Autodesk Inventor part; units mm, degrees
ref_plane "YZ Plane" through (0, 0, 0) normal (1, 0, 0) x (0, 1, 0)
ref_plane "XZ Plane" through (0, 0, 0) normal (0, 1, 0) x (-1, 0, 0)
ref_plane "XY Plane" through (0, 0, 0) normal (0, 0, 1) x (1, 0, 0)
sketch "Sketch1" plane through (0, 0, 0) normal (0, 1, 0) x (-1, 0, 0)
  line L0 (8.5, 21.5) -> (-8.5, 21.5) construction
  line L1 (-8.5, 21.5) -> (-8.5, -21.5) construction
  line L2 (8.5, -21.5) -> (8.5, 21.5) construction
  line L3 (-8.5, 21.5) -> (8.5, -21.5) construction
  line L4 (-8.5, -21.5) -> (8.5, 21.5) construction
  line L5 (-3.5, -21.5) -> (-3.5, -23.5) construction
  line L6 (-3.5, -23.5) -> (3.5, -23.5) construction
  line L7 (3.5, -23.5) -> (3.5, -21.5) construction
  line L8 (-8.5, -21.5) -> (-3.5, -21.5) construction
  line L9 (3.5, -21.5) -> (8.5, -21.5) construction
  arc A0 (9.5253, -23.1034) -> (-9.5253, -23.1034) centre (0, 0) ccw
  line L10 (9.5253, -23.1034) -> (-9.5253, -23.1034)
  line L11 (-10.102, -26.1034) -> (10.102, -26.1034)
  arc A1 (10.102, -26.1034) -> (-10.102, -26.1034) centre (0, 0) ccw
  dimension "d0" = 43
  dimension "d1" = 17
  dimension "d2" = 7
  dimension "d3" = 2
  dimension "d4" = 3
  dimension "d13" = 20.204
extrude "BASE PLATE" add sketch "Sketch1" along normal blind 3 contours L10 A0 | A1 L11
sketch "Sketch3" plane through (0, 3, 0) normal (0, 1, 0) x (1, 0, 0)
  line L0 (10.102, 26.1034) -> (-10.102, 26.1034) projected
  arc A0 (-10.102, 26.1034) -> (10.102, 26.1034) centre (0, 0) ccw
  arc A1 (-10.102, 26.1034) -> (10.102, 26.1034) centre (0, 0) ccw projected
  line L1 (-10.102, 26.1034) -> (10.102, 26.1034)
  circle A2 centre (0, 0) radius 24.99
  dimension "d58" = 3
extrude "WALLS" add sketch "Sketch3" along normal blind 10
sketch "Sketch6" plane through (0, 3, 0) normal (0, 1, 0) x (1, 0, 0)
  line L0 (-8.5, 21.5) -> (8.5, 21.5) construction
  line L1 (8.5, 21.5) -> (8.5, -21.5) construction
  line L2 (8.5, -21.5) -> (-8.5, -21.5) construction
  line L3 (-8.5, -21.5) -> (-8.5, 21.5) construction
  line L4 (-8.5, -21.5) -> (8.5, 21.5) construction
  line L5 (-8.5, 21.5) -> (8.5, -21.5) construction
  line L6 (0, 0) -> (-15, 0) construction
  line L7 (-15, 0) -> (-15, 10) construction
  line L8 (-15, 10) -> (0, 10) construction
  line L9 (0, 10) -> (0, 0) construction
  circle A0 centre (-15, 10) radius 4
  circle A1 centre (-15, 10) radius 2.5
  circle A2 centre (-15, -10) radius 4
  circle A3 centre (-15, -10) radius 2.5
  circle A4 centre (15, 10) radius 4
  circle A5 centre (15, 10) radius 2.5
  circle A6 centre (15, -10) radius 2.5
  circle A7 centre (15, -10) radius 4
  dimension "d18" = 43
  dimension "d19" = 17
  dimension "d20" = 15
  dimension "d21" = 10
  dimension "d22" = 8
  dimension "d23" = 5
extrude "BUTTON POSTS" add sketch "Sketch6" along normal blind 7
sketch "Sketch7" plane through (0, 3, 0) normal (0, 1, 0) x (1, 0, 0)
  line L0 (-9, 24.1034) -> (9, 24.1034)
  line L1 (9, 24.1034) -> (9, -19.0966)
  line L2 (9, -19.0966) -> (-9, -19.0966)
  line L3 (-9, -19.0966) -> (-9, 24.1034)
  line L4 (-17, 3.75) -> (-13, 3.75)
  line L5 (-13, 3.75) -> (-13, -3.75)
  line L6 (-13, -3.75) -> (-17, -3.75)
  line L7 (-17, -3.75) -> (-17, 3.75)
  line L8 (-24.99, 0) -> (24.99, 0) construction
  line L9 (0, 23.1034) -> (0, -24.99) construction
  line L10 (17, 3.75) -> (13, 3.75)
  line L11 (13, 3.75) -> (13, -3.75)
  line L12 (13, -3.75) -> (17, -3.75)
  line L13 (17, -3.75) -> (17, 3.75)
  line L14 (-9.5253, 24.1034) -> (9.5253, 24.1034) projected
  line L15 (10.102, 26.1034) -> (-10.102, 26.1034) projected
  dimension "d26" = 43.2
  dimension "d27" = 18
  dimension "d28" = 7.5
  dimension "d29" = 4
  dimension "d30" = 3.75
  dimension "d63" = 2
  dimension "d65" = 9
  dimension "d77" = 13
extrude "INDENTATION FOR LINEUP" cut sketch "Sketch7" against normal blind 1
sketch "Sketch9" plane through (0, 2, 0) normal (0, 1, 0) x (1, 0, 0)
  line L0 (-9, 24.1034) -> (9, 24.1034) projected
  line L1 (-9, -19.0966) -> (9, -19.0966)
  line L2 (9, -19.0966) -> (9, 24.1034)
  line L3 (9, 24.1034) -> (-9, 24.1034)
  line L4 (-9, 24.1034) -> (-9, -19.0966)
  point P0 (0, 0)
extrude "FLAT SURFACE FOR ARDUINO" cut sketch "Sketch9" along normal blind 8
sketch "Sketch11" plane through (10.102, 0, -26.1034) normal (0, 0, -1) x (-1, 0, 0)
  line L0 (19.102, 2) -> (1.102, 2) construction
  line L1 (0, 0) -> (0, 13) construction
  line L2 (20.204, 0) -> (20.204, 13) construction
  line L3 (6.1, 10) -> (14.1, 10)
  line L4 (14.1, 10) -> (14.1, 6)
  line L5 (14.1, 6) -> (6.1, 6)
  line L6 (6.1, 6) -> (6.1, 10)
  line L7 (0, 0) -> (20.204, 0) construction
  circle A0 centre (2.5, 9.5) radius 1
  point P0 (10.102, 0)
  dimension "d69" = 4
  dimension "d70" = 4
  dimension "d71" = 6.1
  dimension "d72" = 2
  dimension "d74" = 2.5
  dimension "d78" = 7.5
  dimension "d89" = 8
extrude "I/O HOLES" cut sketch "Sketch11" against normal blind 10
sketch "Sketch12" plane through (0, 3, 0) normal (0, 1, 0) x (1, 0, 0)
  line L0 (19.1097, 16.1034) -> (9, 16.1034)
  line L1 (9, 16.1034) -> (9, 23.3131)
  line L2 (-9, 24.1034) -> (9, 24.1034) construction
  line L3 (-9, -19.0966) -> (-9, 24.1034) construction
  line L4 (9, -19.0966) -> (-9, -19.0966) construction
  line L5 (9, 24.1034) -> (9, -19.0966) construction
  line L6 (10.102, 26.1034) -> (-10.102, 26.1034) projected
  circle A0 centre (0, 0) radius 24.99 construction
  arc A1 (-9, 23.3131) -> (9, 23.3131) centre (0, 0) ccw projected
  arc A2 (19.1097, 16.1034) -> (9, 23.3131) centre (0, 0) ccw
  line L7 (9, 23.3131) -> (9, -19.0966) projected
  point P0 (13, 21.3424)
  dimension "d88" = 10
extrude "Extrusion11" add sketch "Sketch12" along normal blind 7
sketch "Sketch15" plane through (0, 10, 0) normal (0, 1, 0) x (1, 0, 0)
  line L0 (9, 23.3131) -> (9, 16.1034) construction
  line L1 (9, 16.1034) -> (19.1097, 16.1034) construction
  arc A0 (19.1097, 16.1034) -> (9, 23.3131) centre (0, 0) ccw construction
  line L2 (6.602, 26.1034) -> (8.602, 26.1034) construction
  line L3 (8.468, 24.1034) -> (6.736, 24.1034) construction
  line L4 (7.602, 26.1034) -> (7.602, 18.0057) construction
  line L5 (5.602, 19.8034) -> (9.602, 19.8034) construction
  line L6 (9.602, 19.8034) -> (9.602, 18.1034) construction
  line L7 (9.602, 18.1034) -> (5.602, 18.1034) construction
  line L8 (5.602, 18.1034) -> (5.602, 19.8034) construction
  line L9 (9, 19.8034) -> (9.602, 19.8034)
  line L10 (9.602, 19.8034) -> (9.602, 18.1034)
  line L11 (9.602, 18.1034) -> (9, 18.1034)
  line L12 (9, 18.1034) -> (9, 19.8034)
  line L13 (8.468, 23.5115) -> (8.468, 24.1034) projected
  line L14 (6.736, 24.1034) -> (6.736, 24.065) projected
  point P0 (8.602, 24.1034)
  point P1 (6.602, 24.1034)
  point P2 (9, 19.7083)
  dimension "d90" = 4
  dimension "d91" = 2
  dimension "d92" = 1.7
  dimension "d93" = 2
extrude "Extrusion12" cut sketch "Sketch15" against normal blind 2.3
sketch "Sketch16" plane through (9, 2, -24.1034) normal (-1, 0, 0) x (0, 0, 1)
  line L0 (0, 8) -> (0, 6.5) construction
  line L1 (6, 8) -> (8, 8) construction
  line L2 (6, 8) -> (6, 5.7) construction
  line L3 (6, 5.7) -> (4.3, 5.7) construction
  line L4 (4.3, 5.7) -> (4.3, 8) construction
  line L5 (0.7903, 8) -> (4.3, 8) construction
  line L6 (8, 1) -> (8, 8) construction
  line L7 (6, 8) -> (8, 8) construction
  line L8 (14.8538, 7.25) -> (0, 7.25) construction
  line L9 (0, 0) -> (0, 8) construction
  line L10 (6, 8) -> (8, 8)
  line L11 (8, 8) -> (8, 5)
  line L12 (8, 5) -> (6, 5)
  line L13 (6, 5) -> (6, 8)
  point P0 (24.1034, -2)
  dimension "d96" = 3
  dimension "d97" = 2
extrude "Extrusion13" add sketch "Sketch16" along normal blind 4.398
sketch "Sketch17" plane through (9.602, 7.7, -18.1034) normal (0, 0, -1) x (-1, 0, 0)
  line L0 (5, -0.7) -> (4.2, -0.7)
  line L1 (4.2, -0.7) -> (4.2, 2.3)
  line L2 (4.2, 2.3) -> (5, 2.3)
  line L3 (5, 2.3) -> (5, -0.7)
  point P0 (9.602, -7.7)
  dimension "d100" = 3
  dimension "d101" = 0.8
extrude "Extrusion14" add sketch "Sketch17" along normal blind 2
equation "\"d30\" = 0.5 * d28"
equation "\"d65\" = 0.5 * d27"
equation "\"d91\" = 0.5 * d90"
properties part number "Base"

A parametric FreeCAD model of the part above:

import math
import FreeCAD as App
import Part
import Sketcher
from FreeCAD import Vector


def add_polygon(sketch, points):
    """Adds a closed chain of lines whose ends are joined by coincident constraints."""
    first, n = sketch.GeometryCount, len(points)
    for a, b in zip(points, points[1:] + points[:1]):
        sketch.addGeometry(Part.LineSegment(App.Vector(*a, 0), App.Vector(*b, 0)), False)
    for i in range(n):
        sketch.addConstraint(Sketcher.Constraint("Coincident", first + i, 2, first + (i + 1) % n, 1))

doc = App.newDocument("Part")
params = doc.addObject("Spreadsheet::Sheet", "Params")
for row, (alias, value) in enumerate([
    ("sketch1_radius", "27.99 mm"),
    ("pad1_length", "3 mm"),
    ("sketch2_diameter", "49.98 mm"),
    ("sketch2_radius", "27.99 mm"),
    ("pad2_length", "10 mm"),
    ("sketch3_diameter", "8 mm"),
    ("sketch3_diameter2", "5 mm"),
    ("pad3_length", "7 mm"),
    ("sketch4_width", "18 mm"),
    ("sketch4_width2", "4 mm"),
    ("sketch4_height", "43.2 mm"),
    ("sketch4_height2", "7.5 mm"),
    ("pocket1_length", "1 mm"),
    ("sketch5_width", "18 mm"),
    ("sketch5_height", "43.2 mm"),
    ("pocket2_length", "8 mm"),
    ("sketch6_diameter", "2 mm"),
    ("sketch6_width", "8 mm"),
    ("sketch6_height", "4 mm"),
    ("pocket3_length", "10 mm"),
    ("sketch7_radius", "24.99 mm"),
    ("pad4_length", "7 mm"),
    ("sketch8_height", "1.7 mm"),
    ("pocket4_length", "2.3 mm"),
    ("sketch9_width", "3 mm"),
    ("sketch9_height", "2 mm"),
    ("pad5_length", "4.398 mm"),
    ("sketch10_height", "3 mm"),
    ("sketch10_width", "0.8 mm"),
    ("pad6_length", "2 mm"),
], start=1):
    params.set(f"A{row}", alias)
    params.set(f"B{row}", "=" + value)
    params.setAlias(f"B{row}", alias)

body = doc.addObject("PartDesign::Body", "Body")

# Sketch on XZ plane
sketch1 = body.newObject("Sketcher::SketchObject", "Sketch")
sketch1.AttachmentSupport = (doc.getObject("XZ_Plane"), [""])
sketch1.MapMode = "FlatFace"
sketch1.addGeometry(Part.ArcOfCircle(Part.Circle(Vector(0, 0, 0), Vector(0, 0, 1), 28), math.radians(-69), math.radians(249)), False)
sketch1.addGeometry(Part.LineSegment(Vector(10, -26, 0), Vector(-10, -26, 0)), False)
sketch1.addConstraint(Sketcher.Constraint("Coincident", 0, 1, 1, 1))
sketch1.addConstraint(Sketcher.Constraint("Coincident", 1, 2, 0, 2))
sketch1.addConstraint(Sketcher.Constraint("Horizontal", 1))
sketch1.addConstraint(Sketcher.Constraint("Coincident", 0, 3, -1, 1))
sketch1.addConstraint(Sketcher.Constraint("DistanceX", 1, 2, 1, 1, 20.204))
sketch1.addConstraint(Sketcher.Constraint("Radius", 0, 27.99))
sketch1.setExpression("Constraints[5]", "Params.sketch1_radius")
pad1 = body.newObject("PartDesign::Pad", "Pad")
pad1.Profile = sketch1
pad1.setExpression("Length", "Params.pad1_length")
pad1.Reversed = True

# Sketch on XZ plane
sketch2 = body.newObject("Sketcher::SketchObject", "Sketch001")
sketch2.AttachmentSupport = (doc.getObject("XZ_Plane"), [""])
sketch2.MapMode = "FlatFace"
sketch2.AttachmentOffset = App.Placement(Vector(0, 0, -3), App.Rotation())
sketch2.addGeometry(Part.ArcOfCircle(Part.Circle(Vector(0, 0, 0), Vector(0, 0, 1), 28), math.radians(-69), math.radians(249)), False)
sketch2.addGeometry(Part.LineSegment(Vector(10, -26, 0), Vector(-10, -26, 0)), False)
sketch2.addGeometry(Part.Circle(Vector(0, 0, 0), Vector(0, 0, 1), 25), False)
sketch2.addConstraint(Sketcher.Constraint("Coincident", 0, 1, 1, 1))
sketch2.addConstraint(Sketcher.Constraint("Coincident", 1, 2, 0, 2))
sketch2.addConstraint(Sketcher.Constraint("Horizontal", 1))
sketch2.addConstraint(Sketcher.Constraint("Coincident", 0, 3, -1, 1))
sketch2.addConstraint(Sketcher.Constraint("Coincident", 2, 3, -1, 1))
sketch2.addConstraint(Sketcher.Constraint("Diameter", 2, 49.98))
sketch2.addConstraint(Sketcher.Constraint("Radius", 0, 27.99))
sketch2.addConstraint(Sketcher.Constraint("DistanceX", 1, 2, 1, 1, 20.204))
sketch2.setExpression("Constraints[5]", "Params.sketch2_diameter")
sketch2.setExpression("Constraints[6]", "Params.sketch2_radius")
pad2 = body.newObject("PartDesign::Pad", "Pad001")
pad2.Profile = sketch2
pad2.setExpression("Length", "Params.pad2_length")
pad2.Reversed = True

# Sketch on XZ plane
sketch3 = body.newObject("Sketcher::SketchObject", "Sketch002")
sketch3.AttachmentSupport = (doc.getObject("XZ_Plane"), [""])
sketch3.MapMode = "FlatFace"
sketch3.AttachmentOffset = App.Placement(Vector(0, 0, -3), App.Rotation())
sketch3.addGeometry(Part.Circle(Vector(-15, -10, 0), Vector(0, 0, 1), 4), False)
sketch3.addGeometry(Part.Circle(Vector(-15, -10, 0), Vector(0, 0, 1), 2.5), False)
sketch3.addGeometry(Part.Circle(Vector(-15, 10, 0), Vector(0, 0, 1), 4), False)
sketch3.addGeometry(Part.Circle(Vector(-15, 10, 0), Vector(0, 0, 1), 2.5), False)
sketch3.addGeometry(Part.Circle(Vector(15, -10, 0), Vector(0, 0, 1), 4), False)
sketch3.addGeometry(Part.Circle(Vector(15, -10, 0), Vector(0, 0, 1), 2.5), False)
sketch3.addGeometry(Part.Circle(Vector(15, 10, 0), Vector(0, 0, 1), 4), False)
sketch3.addGeometry(Part.Circle(Vector(15, 10, 0), Vector(0, 0, 1), 2.5), False)
sketch3.addConstraint(Sketcher.Constraint("Coincident", 1, 3, 0, 3))
sketch3.addConstraint(Sketcher.Constraint("Coincident", 3, 3, 2, 3))
sketch3.addConstraint(Sketcher.Constraint("Coincident", 5, 3, 4, 3))
sketch3.addConstraint(Sketcher.Constraint("Coincident", 7, 3, 6, 3))
sketch3.addConstraint(Sketcher.Constraint("Equal", 0, 2))
sketch3.addConstraint(Sketcher.Constraint("Equal", 1, 3))
sketch3.addConstraint(Sketcher.Constraint("Equal", 2, 4))
sketch3.addConstraint(Sketcher.Constraint("Equal", 3, 5))
sketch3.addConstraint(Sketcher.Constraint("Equal", 4, 6))
sketch3.addConstraint(Sketcher.Constraint("Equal", 5, 7))
sketch3.addConstraint(Sketcher.Constraint("Symmetric", 2, 3, 4, 3, -1, 1))
sketch3.addConstraint(Sketcher.Constraint("Symmetric", 0, 3, 6, 3, -1, 1))
sketch3.addConstraint(Sketcher.Constraint("Symmetric", 0, 3, 4, 3, -2))
sketch3.addConstraint(Sketcher.Constraint("Diameter", 0, 8.0))
sketch3.addConstraint(Sketcher.Constraint("Diameter", 1, 5.0))
sketch3.addConstraint(Sketcher.Constraint("DistanceX", 0, 3, -1, 1, 15.0))
sketch3.addConstraint(Sketcher.Constraint("DistanceY", 0, 3, -1, 1, 10.0))
sketch3.setExpression("Constraints[13]", "Params.sketch3_diameter")
sketch3.setExpression("Constraints[14]", "Params.sketch3_diameter2")
pad3 = body.newObject("PartDesign::Pad", "Pad002")
pad3.Profile = sketch3
pad3.setExpression("Length", "Params.pad3_length")
pad3.Reversed = True

# Sketch on XZ plane
sketch4 = body.newObject("Sketcher::SketchObject", "Sketch003")
sketch4.AttachmentSupport = (doc.getObject("XZ_Plane"), [""])
sketch4.MapMode = "FlatFace"
sketch4.AttachmentOffset = App.Placement(Vector(0, 0, -3), App.Rotation())
add_polygon(sketch4, [(9, -24.1), (-9, -24.1), (-9, 19.1), (9, 19.1)])  # lines 0-3
add_polygon(sketch4, [(-13, -3.8), (-17, -3.8), (-17, 3.8), (-13, 3.8)])  # lines 4-7
add_polygon(sketch4, [(17, 3.8), (17, -3.8), (13, -3.8), (13, 3.8)])  # lines 8-11
sketch4.addConstraint(Sketcher.Constraint("Horizontal", 0))
sketch4.addConstraint(Sketcher.Constraint("Vertical", 1))
sketch4.addConstraint(Sketcher.Constraint("Horizontal", 2))
sketch4.addConstraint(Sketcher.Constraint("Vertical", 3))
sketch4.addConstraint(Sketcher.Constraint("Horizontal", 4))
sketch4.addConstraint(Sketcher.Constraint("Vertical", 5))
sketch4.addConstraint(Sketcher.Constraint("Horizontal", 6))
sketch4.addConstraint(Sketcher.Constraint("Vertical", 7))
sketch4.addConstraint(Sketcher.Constraint("Vertical", 8))
sketch4.addConstraint(Sketcher.Constraint("Horizontal", 9))
sketch4.addConstraint(Sketcher.Constraint("Vertical", 10))
sketch4.addConstraint(Sketcher.Constraint("Horizontal", 11))
sketch4.addConstraint(Sketcher.Constraint("Symmetric", 5, 2, 8, 2, -1, 1))
sketch4.addConstraint(Sketcher.Constraint("Symmetric", 7, 2, 10, 2, -1, 1))
sketch4.addConstraint(Sketcher.Constraint("Horizontal", 7, 2, 8, 2))
sketch4.addConstraint(Sketcher.Constraint("DistanceX", 0, 2, 0, 1, 18.0))
sketch4.addConstraint(Sketcher.Constraint("DistanceX", 4, 2, 4, 1, 4.0))
sketch4.addConstraint(Sketcher.Constraint("DistanceY", 1, 1, 1, 2, 43.2))
sketch4.addConstraint(Sketcher.Constraint("DistanceY", 5, 1, 5, 2, 7.5))
sketch4.addConstraint(Sketcher.Constraint("DistanceX", 0, 2, -1, 1, 9.0))
sketch4.addConstraint(Sketcher.Constraint("DistanceX", 6, 2, -1, 1, 13.0))
sketch4.addConstraint(Sketcher.Constraint("DistanceY", 0, 2, -1, 1, 24.1034))
sketch4.setExpression("Constraints[27]", "Params.sketch4_width")
sketch4.setExpression("Constraints[28]", "Params.sketch4_width2")
sketch4.setExpression("Constraints[29]", "Params.sketch4_height")
sketch4.setExpression("Constraints[30]", "Params.sketch4_height2")
pocket1 = body.newObject("PartDesign::Pocket", "Pocket")
pocket1.Profile = sketch4
pocket1.setExpression("Length", "Params.pocket1_length")
pocket1.Reversed = True

# Sketch on XZ plane
sketch5 = body.newObject("Sketcher::SketchObject", "Sketch004")
sketch5.AttachmentSupport = (doc.getObject("XZ_Plane"), [""])
sketch5.MapMode = "FlatFace"
sketch5.AttachmentOffset = App.Placement(Vector(0, 0, -2), App.Rotation())
add_polygon(sketch5, [(9, -24), (-9, -24), (-9, 19), (9, 19)])  # lines 0-3
sketch5.addConstraint(Sketcher.Constraint("Horizontal", 0))
sketch5.addConstraint(Sketcher.Constraint("Vertical", 1))
sketch5.addConstraint(Sketcher.Constraint("Horizontal", 2))
sketch5.addConstraint(Sketcher.Constraint("Vertical", 3))
sketch5.addConstraint(Sketcher.Constraint("DistanceX", 0, 2, 0, 1, 18.0))
sketch5.addConstraint(Sketcher.Constraint("DistanceY", 1, 1, 1, 2, 43.2))
sketch5.addConstraint(Sketcher.Constraint("DistanceX", 0, 2, -1, 1, 9.0))
sketch5.addConstraint(Sketcher.Constraint("DistanceY", 0, 2, -1, 1, 24.1034))
sketch5.setExpression("Constraints[8]", "Params.sketch5_width")
sketch5.setExpression("Constraints[9]", "Params.sketch5_height")
pocket2 = body.newObject("PartDesign::Pocket", "Pocket001")
pocket2.Profile = sketch5
pocket2.setExpression("Length", "Params.pocket2_length")

# Sketch on XY plane
sketch6 = body.newObject("Sketcher::SketchObject", "Sketch005")
sketch6.AttachmentSupport = (doc.getObject("XY_Plane"), [""])
sketch6.MapMode = "FlatFace"
sketch6.AttachmentOffset = App.Placement(Vector(0, 0, -26.1034), App.Rotation())
add_polygon(sketch6, [(-4, 10), (4, 10), (4, 6), (-4, 6)])  # lines 0-3
sketch6.addGeometry(Part.Circle(Vector(7.6, 9.5, 0), Vector(0, 0, 1), 1), False)  # 4
sketch6.addConstraint(Sketcher.Constraint("Horizontal", 0))
sketch6.addConstraint(Sketcher.Constraint("Vertical", 1))
sketch6.addConstraint(Sketcher.Constraint("Horizontal", 2))
sketch6.addConstraint(Sketcher.Constraint("Vertical", 3))
sketch6.addConstraint(Sketcher.Constraint("Diameter", 4, 2.0))
sketch6.addConstraint(Sketcher.Constraint("DistanceX", 0, 1, 0, 2, 8.0))
sketch6.addConstraint(Sketcher.Constraint("DistanceY", 1, 2, 1, 1, 4.0))
sketch6.addConstraint(Sketcher.Constraint("DistanceY", -1, 1, 0, 2, 10.0))
sketch6.addConstraint(Sketcher.Constraint("DistanceY", -1, 1, 4, 3, 9.5))
sketch6.addConstraint(Sketcher.Constraint("DistanceX", 0, 2, 4, 3, 3.6))
sketch6.addConstraint(Sketcher.Constraint("DistanceX", -1, 1, 4, 3, 7.602))
sketch6.setExpression("Constraints[8]", "Params.sketch6_diameter")
sketch6.setExpression("Constraints[9]", "Params.sketch6_width")
sketch6.setExpression("Constraints[10]", "Params.sketch6_height")
pocket3 = body.newObject("PartDesign::Pocket", "Pocket002")
pocket3.Profile = sketch6
pocket3.setExpression("Length", "Params.pocket3_length")
pocket3.Reversed = True

# Sketch on XZ plane
sketch7 = body.newObject("Sketcher::SketchObject", "Sketch006")
sketch7.AttachmentSupport = (doc.getObject("XZ_Plane"), [""])
sketch7.MapMode = "FlatFace"
sketch7.AttachmentOffset = App.Placement(Vector(0, 0, -3), App.Rotation())
sketch7.addGeometry(Part.LineSegment(Vector(9, -16, 0), Vector(19, -16, 0)), False)
sketch7.addGeometry(Part.ArcOfCircle(Part.Circle(Vector(0, 0, 0), Vector(0, 0, 1), 25), math.radians(-69), math.radians(-40)), False)
sketch7.addGeometry(Part.LineSegment(Vector(9, -23, 0), Vector(9, -16, 0)), False)
sketch7.addConstraint(Sketcher.Constraint("Coincident", 0, 2, 1, 2))
sketch7.addConstraint(Sketcher.Constraint("Coincident", 1, 1, 2, 1))
sketch7.addConstraint(Sketcher.Constraint("Coincident", 2, 2, 0, 1))
sketch7.addConstraint(Sketcher.Constraint("Horizontal", 0))
sketch7.addConstraint(Sketcher.Constraint("Vertical", 2))
sketch7.addConstraint(Sketcher.Constraint("Coincident", 1, 3, -1, 1))
sketch7.addConstraint(Sketcher.Constraint("Radius", 1, 24.99))
sketch7.addConstraint(Sketcher.Constraint("DistanceX", -1, 1, 1, 1, 9.0))
sketch7.addConstraint(Sketcher.Constraint("DistanceX", 0, 1, 0, 2, 10.1097))
sketch7.setExpression("Constraints[6]", "Params.sketch7_radius")
pad4 = body.newObject("PartDesign::Pad", "Pad003")
pad4.Profile = sketch7
pad4.setExpression("Length", "Params.pad4_length")
pad4.Reversed = True

# Sketch on XZ plane
sketch8 = body.newObject("Sketcher::SketchObject", "Sketch007")
sketch8.AttachmentSupport = (doc.getObject("XZ_Plane"), [""])
sketch8.MapMode = "FlatFace"
sketch8.AttachmentOffset = App.Placement(Vector(0, 0, -10), App.Rotation())
add_polygon(sketch8, [(9.6, -19.8), (9, -19.8), (9, -18.1), (9.6, -18.1)])  # lines 0-3
sketch8.addConstraint(Sketcher.Constraint("Horizontal", 0))
sketch8.addConstraint(Sketcher.Constraint("Vertical", 1))
sketch8.addConstraint(Sketcher.Constraint("Horizontal", 2))
sketch8.addConstraint(Sketcher.Constraint("Vertical", 3))
sketch8.addConstraint(Sketcher.Constraint("DistanceY", 1, 1, 1, 2, 1.7))
sketch8.addConstraint(Sketcher.Constraint("DistanceX", -1, 1, 0, 2, 9.0))
sketch8.addConstraint(Sketcher.Constraint("DistanceX", 0, 2, 0, 1, 0.602))
sketch8.addConstraint(Sketcher.Constraint("DistanceY", 0, 2, -1, 1, 19.8034))
sketch8.setExpression("Constraints[8]", "Params.sketch8_height")
pocket4 = body.newObject("PartDesign::Pocket", "Pocket003")
pocket4.Profile = sketch8
pocket4.setExpression("Length", "Params.pocket4_length")
pocket4.Reversed = True

# Sketch on YZ plane
sketch9 = body.newObject("Sketcher::SketchObject", "Sketch008")
sketch9.AttachmentSupport = (doc.getObject("YZ_Plane"), [""])
sketch9.MapMode = "FlatFace"
sketch9.AttachmentOffset = App.Placement(Vector(0, 0, 9), App.Rotation())
add_polygon(sketch9, [(10, -16.1), (10, -18.1), (7, -18.1), (7, -16.1)])  # lines 0-3
sketch9.addConstraint(Sketcher.Constraint("Vertical", 0))
sketch9.addConstraint(Sketcher.Constraint("Horizontal", 1))
sketch9.addConstraint(Sketcher.Constraint("Vertical", 2))
sketch9.addConstraint(Sketcher.Constraint("Horizontal", 3))
sketch9.addConstraint(Sketcher.Constraint("DistanceX", 1, 2, 1, 1, 3.0))
sketch9.addConstraint(Sketcher.Constraint("DistanceY", 0, 2, 0, 1, 2.0))
sketch9.addConstraint(Sketcher.Constraint("DistanceX", -1, 1, 0, 2, 10.0))
sketch9.addConstraint(Sketcher.Constraint("DistanceY", 0, 2, -1, 1, 18.1034))
sketch9.setExpression("Constraints[8]", "Params.sketch9_width")
sketch9.setExpression("Constraints[9]", "Params.sketch9_height")
pad5 = body.newObject("PartDesign::Pad", "Pad004")
pad5.Profile = sketch9
pad5.setExpression("Length", "Params.pad5_length")
pad5.Reversed = True

# Sketch on XY plane
sketch10 = body.newObject("Sketcher::SketchObject", "Sketch009")
sketch10.AttachmentSupport = (doc.getObject("XY_Plane"), [""])
sketch10.MapMode = "FlatFace"
sketch10.AttachmentOffset = App.Placement(Vector(0, 0, -18.1034), App.Rotation())
add_polygon(sketch10, [(5.4, 7), (4.6, 7), (4.6, 10), (5.4, 10)])  # lines 0-3
sketch10.addConstraint(Sketcher.Constraint("Horizontal", 0))
sketch10.addConstraint(Sketcher.Constraint("Vertical", 1))
sketch10.addConstraint(Sketcher.Constraint("Horizontal", 2))
sketch10.addConstraint(Sketcher.Constraint("Vertical", 3))
sketch10.addConstraint(Sketcher.Constraint("DistanceY", 1, 1, 1, 2, 3.0))
sketch10.addConstraint(Sketcher.Constraint("DistanceX", 0, 2, 0, 1, 0.8))
sketch10.addConstraint(Sketcher.Constraint("DistanceY", -1, 1, 0, 2, 7.0))
sketch10.addConstraint(Sketcher.Constraint("DistanceX", -1, 1, 0, 2, 4.602))
sketch10.setExpression("Constraints[8]", "Params.sketch10_height")
sketch10.setExpression("Constraints[9]", "Params.sketch10_width")
pad6 = body.newObject("PartDesign::Pad", "Pad005")
pad6.Profile = sketch10
pad6.setExpression("Length", "Params.pad6_length")
pad6.Reversed = True

doc.recompute()
